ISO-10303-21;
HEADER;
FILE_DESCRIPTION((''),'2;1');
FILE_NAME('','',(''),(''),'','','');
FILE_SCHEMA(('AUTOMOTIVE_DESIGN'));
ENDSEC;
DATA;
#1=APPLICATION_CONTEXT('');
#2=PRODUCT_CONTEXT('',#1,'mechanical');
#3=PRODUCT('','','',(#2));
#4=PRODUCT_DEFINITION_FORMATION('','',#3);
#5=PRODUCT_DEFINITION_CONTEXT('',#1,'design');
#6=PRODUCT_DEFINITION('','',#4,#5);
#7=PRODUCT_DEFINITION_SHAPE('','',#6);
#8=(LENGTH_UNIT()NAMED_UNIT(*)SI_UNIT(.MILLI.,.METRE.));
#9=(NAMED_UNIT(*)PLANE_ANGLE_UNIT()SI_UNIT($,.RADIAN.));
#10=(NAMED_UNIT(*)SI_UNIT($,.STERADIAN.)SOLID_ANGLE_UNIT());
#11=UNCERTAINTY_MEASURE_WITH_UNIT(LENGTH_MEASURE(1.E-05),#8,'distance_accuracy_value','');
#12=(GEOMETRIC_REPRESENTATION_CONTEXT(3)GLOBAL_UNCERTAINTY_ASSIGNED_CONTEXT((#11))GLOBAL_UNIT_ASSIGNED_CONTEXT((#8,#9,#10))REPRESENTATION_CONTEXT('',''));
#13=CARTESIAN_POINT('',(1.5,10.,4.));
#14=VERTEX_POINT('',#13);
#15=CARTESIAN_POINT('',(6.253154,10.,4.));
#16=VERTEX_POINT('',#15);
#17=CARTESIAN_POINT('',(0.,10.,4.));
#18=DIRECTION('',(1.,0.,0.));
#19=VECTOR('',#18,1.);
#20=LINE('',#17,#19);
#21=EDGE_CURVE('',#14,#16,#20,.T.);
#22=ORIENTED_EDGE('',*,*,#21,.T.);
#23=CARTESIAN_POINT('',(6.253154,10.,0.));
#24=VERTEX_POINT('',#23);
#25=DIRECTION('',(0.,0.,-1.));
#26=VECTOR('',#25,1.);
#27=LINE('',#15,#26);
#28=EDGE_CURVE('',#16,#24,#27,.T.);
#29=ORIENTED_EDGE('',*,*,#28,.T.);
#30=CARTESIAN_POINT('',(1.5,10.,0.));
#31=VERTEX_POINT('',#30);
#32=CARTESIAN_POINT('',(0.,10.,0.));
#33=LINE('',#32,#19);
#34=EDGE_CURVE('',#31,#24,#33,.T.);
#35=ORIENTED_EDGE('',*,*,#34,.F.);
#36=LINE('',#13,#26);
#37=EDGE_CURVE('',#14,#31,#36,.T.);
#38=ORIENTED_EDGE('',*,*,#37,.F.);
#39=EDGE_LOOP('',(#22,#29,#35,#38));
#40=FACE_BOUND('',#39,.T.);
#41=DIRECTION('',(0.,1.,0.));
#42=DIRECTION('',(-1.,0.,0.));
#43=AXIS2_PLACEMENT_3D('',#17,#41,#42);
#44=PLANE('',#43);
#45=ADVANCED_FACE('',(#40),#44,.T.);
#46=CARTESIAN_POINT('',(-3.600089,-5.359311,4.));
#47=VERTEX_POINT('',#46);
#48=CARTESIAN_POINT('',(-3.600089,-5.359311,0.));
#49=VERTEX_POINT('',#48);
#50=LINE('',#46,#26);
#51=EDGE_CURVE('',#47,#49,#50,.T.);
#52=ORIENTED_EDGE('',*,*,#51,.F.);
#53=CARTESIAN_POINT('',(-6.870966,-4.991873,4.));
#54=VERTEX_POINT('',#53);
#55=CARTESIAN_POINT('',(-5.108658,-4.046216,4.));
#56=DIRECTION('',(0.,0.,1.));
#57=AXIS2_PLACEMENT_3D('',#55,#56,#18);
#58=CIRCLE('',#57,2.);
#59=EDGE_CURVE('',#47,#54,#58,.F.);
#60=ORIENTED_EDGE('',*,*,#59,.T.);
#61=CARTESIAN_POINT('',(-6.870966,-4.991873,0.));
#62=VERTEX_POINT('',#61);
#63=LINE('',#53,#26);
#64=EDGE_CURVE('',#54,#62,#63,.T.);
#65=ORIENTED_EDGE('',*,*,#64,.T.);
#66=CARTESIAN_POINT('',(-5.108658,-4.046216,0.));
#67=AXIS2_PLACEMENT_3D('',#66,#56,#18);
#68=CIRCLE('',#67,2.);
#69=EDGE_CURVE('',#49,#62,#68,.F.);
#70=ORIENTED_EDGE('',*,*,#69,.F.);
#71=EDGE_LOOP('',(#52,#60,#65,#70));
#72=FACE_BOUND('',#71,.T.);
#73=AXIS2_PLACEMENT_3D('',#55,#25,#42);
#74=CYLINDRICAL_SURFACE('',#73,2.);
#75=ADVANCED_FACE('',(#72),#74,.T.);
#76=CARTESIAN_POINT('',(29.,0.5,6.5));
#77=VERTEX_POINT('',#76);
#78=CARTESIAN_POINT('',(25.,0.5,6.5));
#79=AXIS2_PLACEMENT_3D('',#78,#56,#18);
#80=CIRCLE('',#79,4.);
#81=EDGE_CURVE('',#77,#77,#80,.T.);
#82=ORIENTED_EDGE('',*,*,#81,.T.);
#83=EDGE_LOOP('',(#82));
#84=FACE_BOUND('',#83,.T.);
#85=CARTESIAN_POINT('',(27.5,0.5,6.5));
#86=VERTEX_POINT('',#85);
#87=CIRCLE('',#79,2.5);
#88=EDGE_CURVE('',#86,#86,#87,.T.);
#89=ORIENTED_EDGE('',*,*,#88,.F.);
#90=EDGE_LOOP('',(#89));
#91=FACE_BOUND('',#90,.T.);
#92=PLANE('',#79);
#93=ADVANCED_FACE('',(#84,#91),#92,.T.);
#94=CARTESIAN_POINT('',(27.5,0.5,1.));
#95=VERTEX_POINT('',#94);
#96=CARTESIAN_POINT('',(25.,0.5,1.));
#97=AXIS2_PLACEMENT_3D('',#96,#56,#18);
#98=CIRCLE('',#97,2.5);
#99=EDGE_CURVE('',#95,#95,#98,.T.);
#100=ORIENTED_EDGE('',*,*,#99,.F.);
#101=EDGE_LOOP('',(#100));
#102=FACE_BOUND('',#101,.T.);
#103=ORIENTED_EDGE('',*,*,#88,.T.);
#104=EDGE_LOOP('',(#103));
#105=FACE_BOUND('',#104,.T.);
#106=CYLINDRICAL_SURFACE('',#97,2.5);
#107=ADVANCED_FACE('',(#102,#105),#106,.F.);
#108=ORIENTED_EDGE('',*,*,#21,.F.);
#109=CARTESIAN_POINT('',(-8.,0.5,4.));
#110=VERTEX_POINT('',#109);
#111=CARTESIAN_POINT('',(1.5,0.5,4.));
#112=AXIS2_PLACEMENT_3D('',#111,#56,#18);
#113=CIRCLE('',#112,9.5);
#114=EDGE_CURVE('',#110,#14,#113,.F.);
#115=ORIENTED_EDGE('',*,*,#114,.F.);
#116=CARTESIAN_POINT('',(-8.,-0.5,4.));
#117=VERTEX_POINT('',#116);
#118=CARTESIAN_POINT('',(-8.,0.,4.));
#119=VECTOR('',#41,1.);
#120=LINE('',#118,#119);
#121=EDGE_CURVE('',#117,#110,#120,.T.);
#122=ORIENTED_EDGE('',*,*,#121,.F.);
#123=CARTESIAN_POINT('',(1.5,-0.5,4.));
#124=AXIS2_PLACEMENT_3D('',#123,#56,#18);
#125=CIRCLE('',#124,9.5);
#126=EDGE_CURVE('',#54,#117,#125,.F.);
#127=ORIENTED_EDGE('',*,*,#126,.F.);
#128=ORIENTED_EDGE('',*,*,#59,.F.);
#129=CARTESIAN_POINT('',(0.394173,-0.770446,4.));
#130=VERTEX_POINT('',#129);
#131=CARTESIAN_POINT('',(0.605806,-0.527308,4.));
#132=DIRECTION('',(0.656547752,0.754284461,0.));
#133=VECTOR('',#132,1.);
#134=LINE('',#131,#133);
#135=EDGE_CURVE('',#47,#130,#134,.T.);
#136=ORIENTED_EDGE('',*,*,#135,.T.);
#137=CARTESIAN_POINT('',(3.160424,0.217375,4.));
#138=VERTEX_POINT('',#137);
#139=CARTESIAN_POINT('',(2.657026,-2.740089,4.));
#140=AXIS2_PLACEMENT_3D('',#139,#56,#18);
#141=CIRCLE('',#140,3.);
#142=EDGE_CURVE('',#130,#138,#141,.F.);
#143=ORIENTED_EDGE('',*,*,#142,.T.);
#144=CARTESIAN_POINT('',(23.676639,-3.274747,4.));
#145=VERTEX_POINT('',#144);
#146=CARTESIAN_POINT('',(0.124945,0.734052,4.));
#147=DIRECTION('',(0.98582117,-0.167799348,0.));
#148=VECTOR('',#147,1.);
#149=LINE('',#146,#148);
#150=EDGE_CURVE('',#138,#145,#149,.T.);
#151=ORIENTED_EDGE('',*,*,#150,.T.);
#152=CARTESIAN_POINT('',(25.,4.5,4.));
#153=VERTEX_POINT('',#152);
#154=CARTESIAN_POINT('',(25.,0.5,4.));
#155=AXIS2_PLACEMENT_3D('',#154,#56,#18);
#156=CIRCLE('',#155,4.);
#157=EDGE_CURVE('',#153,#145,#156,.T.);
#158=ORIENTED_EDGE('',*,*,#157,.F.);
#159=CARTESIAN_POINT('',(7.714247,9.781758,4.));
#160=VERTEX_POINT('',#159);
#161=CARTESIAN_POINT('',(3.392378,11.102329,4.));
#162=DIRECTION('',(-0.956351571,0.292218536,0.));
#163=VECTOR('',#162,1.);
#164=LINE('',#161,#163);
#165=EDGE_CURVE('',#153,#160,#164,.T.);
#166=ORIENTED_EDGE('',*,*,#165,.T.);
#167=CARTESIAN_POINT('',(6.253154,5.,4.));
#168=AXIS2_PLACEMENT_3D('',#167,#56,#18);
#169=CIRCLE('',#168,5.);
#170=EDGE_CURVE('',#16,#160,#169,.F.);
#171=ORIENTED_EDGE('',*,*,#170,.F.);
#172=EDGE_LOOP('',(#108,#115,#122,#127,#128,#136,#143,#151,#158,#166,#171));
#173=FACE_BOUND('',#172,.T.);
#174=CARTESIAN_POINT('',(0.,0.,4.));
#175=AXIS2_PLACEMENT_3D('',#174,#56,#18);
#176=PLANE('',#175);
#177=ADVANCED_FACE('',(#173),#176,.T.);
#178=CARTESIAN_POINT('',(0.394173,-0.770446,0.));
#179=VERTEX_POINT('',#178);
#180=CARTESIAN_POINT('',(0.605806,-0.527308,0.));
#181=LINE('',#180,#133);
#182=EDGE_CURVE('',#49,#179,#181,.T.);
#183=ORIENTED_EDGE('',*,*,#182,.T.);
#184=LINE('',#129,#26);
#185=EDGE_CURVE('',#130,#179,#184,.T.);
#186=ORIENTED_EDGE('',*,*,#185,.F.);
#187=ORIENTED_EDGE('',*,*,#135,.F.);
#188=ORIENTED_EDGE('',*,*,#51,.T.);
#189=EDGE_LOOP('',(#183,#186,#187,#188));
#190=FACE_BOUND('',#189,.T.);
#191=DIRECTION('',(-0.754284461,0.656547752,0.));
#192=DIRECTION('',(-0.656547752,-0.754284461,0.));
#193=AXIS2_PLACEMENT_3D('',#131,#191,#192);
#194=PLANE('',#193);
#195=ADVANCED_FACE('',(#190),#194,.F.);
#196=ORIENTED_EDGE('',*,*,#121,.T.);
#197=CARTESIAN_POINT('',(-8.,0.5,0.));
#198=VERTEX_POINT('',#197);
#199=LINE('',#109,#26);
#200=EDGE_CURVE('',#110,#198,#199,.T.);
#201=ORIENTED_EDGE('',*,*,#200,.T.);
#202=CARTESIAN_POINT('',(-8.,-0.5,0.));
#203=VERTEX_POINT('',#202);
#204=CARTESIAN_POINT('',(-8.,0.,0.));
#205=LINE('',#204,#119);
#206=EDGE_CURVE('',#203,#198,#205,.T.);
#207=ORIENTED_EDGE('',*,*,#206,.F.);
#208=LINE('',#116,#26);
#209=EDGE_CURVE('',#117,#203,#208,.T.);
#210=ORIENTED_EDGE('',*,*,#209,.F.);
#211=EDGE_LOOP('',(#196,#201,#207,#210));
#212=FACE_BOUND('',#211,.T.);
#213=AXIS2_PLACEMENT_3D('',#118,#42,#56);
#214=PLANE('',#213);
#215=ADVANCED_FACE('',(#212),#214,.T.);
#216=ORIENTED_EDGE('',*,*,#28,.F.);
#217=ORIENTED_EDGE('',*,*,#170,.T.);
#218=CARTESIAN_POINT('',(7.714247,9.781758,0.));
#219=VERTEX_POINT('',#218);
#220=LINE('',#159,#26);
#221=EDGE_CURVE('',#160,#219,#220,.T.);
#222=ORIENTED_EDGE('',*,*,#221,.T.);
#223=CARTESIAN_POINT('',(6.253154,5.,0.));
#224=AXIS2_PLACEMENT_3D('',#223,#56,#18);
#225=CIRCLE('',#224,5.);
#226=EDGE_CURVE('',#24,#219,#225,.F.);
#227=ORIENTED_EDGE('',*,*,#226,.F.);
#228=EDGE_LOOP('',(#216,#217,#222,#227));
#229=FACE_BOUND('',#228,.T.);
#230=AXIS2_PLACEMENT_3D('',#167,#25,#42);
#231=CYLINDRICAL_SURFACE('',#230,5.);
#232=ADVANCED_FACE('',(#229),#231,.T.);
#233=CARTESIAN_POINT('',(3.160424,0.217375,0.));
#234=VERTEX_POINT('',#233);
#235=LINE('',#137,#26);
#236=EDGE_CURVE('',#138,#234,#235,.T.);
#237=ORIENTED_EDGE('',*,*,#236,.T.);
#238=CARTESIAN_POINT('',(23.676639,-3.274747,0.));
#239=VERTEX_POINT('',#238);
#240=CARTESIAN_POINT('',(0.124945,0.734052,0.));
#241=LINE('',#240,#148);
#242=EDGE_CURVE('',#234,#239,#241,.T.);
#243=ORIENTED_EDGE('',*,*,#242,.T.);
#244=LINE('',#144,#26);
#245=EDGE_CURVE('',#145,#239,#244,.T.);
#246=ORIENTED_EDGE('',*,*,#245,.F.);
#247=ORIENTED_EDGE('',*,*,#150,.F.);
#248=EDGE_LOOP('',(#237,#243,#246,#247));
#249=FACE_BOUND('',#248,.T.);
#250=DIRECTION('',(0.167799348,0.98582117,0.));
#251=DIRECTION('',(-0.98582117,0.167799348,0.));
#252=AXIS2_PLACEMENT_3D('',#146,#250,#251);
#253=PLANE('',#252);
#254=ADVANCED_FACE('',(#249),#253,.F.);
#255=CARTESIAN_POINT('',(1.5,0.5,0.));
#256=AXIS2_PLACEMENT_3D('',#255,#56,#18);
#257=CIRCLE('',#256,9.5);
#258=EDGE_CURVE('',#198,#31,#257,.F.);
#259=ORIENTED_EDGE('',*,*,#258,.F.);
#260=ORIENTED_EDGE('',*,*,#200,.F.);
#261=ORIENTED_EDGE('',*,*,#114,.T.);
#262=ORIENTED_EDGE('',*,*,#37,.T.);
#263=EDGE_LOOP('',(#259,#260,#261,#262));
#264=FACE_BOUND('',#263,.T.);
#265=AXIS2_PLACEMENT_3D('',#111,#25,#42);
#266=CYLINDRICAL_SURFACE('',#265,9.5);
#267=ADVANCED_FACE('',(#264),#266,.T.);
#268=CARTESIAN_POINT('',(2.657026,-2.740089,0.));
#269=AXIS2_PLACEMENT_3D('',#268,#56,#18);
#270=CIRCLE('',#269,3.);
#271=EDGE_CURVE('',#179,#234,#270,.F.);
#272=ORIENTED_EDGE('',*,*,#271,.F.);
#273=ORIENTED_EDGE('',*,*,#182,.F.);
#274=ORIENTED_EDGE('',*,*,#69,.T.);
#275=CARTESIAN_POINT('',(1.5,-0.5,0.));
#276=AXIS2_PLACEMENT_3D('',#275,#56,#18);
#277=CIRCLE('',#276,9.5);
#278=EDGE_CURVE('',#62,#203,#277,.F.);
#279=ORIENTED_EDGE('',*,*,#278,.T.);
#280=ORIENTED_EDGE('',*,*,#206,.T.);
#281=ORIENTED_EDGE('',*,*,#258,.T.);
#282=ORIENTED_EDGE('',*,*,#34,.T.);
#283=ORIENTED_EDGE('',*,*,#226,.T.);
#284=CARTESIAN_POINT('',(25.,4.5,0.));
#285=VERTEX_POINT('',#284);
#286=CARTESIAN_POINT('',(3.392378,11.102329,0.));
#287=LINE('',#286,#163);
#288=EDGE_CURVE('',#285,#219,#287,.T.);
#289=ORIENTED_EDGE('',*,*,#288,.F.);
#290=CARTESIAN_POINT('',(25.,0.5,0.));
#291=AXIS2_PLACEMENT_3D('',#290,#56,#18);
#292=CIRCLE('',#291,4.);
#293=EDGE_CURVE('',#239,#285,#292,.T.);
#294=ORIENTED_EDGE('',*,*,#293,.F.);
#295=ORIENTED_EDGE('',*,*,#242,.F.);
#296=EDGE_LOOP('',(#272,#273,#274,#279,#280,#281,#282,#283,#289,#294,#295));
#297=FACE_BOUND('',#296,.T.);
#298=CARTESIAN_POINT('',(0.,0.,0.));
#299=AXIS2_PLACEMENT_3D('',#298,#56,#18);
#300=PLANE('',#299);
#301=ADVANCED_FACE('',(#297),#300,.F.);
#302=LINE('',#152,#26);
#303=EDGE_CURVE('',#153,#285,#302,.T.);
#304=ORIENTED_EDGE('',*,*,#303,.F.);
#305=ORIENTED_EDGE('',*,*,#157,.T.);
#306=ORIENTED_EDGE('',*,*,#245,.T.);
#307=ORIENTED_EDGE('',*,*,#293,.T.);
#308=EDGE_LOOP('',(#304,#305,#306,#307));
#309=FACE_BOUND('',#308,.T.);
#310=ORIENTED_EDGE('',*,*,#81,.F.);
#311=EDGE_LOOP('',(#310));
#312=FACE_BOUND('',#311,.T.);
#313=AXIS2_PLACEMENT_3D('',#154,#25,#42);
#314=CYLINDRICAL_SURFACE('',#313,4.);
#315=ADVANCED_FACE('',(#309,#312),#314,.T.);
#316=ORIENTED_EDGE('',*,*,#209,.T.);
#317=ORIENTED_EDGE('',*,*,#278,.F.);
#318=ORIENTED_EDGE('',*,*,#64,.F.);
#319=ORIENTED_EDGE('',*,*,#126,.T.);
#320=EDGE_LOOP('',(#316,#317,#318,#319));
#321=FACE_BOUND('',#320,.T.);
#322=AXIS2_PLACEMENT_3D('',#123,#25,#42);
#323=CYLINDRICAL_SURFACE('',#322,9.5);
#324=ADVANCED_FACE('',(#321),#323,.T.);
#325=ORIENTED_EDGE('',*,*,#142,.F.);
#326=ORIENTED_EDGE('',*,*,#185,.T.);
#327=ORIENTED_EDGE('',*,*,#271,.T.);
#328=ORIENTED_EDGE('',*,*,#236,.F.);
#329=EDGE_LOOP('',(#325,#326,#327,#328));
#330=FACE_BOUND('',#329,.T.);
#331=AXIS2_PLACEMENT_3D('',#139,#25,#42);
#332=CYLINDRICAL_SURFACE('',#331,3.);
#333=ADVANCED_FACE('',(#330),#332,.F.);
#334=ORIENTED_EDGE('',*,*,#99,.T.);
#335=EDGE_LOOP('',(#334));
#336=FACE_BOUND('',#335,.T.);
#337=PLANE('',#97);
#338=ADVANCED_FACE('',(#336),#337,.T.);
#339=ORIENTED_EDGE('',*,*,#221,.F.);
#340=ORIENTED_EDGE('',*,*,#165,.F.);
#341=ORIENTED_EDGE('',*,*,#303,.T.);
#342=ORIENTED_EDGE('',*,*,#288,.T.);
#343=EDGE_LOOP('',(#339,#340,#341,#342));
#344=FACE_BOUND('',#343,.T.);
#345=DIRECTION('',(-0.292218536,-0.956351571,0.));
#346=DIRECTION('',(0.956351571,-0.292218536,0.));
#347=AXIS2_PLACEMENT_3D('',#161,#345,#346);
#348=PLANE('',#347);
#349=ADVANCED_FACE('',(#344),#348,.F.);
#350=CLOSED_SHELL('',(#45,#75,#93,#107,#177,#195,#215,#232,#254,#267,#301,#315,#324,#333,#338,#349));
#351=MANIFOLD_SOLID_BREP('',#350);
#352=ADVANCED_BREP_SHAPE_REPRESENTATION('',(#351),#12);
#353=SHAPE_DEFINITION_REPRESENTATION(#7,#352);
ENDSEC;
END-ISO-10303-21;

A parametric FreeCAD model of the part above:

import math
import FreeCAD as App
import Part
import Sketcher
from FreeCAD import Vector
Q = App.Units.Quantity

doc = App.newDocument("Part")
body = doc.addObject("PartDesign::Body", "Body")

# Sketch on XY plane
sketch1 = body.newObject("Sketcher::SketchObject", "Sketch")
sketch1.AttachmentSupport = (doc.getObject("XY_Plane"), [""])
sketch1.MapMode = "FlatFace"
sketch1.addGeometry(Part.LineSegment(Vector(25, 4.5, 0), Vector(7.7, 9.8, 0)), False)
sketch1.addGeometry(Part.ArcOfCircle(Part.Circle(Vector(6.3, 5, 0), Vector(0, 0, 1), 5), math.radians(73.01), math.radians(90)), False)
sketch1.addGeometry(Part.LineSegment(Vector(6.3, 10, 0), Vector(1.5, 10, 0)), False)
sketch1.addGeometry(Part.ArcOfCircle(Part.Circle(Vector(1.5, 0.5, 0), Vector(0, 0, 1), 9.5), math.radians(90), math.radians(180)), False)
sketch1.addGeometry(Part.LineSegment(Vector(-8, 0.5, 0), Vector(-8, -0.5, 0)), False)
sketch1.addGeometry(Part.ArcOfCircle(Part.Circle(Vector(1.5, -0.5, 0), Vector(0, 0, 1), 9.5), math.radians(-180), math.radians(-152)), False)
sketch1.addGeometry(Part.ArcOfCircle(Part.Circle(Vector(-5.1, -4, 0), Vector(0, 0, 1), 2), math.radians(-152), math.radians(-41)), False)
sketch1.addGeometry(Part.LineSegment(Vector(-3.6, -5.4, 0), Vector(0.4, -0.8, 0)), False)
sketch1.addGeometry(Part.ArcOfCircle(Part.Circle(Vector(2.7, -2.7, 0), Vector(0, 0, 1), 3), math.radians(80), math.radians(139)), False)
sketch1.addGeometry(Part.LineSegment(Vector(3.2, 0.2, 0), Vector(23.7, -3.3, 0)), False)
sketch1.addGeometry(Part.ArcOfCircle(Part.Circle(Vector(25, 0.5, 0), Vector(0, 0, 1), 4), math.radians(-109), math.radians(90)), False)
sketch1.addConstraint(Sketcher.Constraint("Tangent", 0, 2, 1, 1))
sketch1.addConstraint(Sketcher.Constraint("Tangent", 1, 2, 2, 1))
sketch1.addConstraint(Sketcher.Constraint("Tangent", 2, 2, 3, 1))
sketch1.addConstraint(Sketcher.Constraint("Tangent", 3, 2, 4, 1))
sketch1.addConstraint(Sketcher.Constraint("Tangent", 4, 2, 5, 1))
sketch1.addConstraint(Sketcher.Constraint("Tangent", 5, 2, 6, 1))
sketch1.addConstraint(Sketcher.Constraint("Tangent", 6, 2, 7, 1))
sketch1.addConstraint(Sketcher.Constraint("Tangent", 7, 2, 8, 2))
sketch1.addConstraint(Sketcher.Constraint("Tangent", 8, 1, 9, 1))
sketch1.addConstraint(Sketcher.Constraint("Coincident", 9, 2, 10, 1))
sketch1.addConstraint(Sketcher.Constraint("Coincident", 10, 2, 0, 1))
sketch1.addConstraint(Sketcher.Constraint("Horizontal", 2))
sketch1.addConstraint(Sketcher.Constraint("Vertical", 4))
sketch1.addConstraint(Sketcher.Constraint("Equal", 3, 5))
sketch1.addConstraint(Sketcher.Constraint("Horizontal", 3, 3, 10, 3))
sketch1.addConstraint(Sketcher.Constraint("Radius", 1, Q("5 mm")))
sketch1.addConstraint(Sketcher.Constraint("Radius", 6, Q("2 mm")))
sketch1.addConstraint(Sketcher.Constraint("Radius", 8, Q("3 mm")))
sketch1.addConstraint(Sketcher.Constraint("Radius", 10, Q("4 mm")))
sketch1.addConstraint(Sketcher.Constraint("Radius", 3, Q("9.5 mm")))
sketch1.addConstraint(Sketcher.Constraint("DistanceY", 4, 2, 4, 1, Q("1 mm")))
sketch1.addConstraint(Sketcher.Constraint("DistanceY", -1, 1, 1, 3, Q("5 mm")))
sketch1.addConstraint(Sketcher.Constraint("DistanceX", -1, 1, 10, 3, Q("25 mm")))
sketch1.addConstraint(Sketcher.Constraint("DistanceX", 3, 2, -1, 1, Q("8 mm")))
sketch1.addConstraint(Sketcher.Constraint("DistanceX", -1, 1, 10, 2, Q("25 mm")))
sketch1.addConstraint(Sketcher.Constraint("DistanceX", 8, 3, 8, 1, Q("0.503398 mm")))
sketch1.addConstraint(Sketcher.Constraint("DistanceX", 2, 2, 2, 1, Q("4.753154 mm")))
sketch1.addConstraint(Sketcher.Constraint("DistanceY", 8, 3, -1, 1, Q("2.740089 mm")))
sketch1.addConstraint(Sketcher.Constraint("DistanceX", 6, 2, -1, 1, Q("3.600089 mm")))
sketch1.addConstraint(Sketcher.Constraint("DistanceY", 6, 2, -1, 1, Q("5.359311 mm")))
pad1 = body.newObject("PartDesign::Pad", "Pad")
pad1.Profile = sketch1
pad1.Length = 4

# Sketch on XY plane
sketch2 = body.newObject("Sketcher::SketchObject", "Sketch001")
sketch2.AttachmentSupport = (doc.getObject("XY_Plane"), [""])
sketch2.MapMode = "FlatFace"
sketch2.AttachmentOffset = App.Placement(Vector(0, 0, 4), App.Rotation())
sketch2.addGeometry(Part.Circle(Vector(25, 0.5, 0), Vector(0, 0, 1), 4), False)
sketch2.addConstraint(Sketcher.Constraint("Diameter", 0, Q("8 mm")))
sketch2.addConstraint(Sketcher.Constraint("DistanceX", -1, 1, 0, 3, Q("25 mm")))
sketch2.addConstraint(Sketcher.Constraint("DistanceY", -1, 1, 0, 3, Q("0.5 mm")))
pad2 = body.newObject("PartDesign::Pad", "Pad001")
pad2.Profile = sketch2
pad2.Length = 2.5

# Sketch on XY plane
sketch3 = body.newObject("Sketcher::SketchObject", "Sketch002")
sketch3.AttachmentSupport = (doc.getObject("XY_Plane"), [""])
sketch3.MapMode = "FlatFace"
sketch3.AttachmentOffset = App.Placement(Vector(0, 0, 6.5), App.Rotation())
sketch3.addGeometry(Part.Circle(Vector(25, 0.5, 0), Vector(0, 0, 1), 2.5), False)
sketch3.addConstraint(Sketcher.Constraint("Diameter", 0, Q("5 mm")))
sketch3.addConstraint(Sketcher.Constraint("DistanceX", -1, 1, 0, 3, Q("25 mm")))
sketch3.addConstraint(Sketcher.Constraint("DistanceY", -1, 1, 0, 3, Q("0.5 mm")))
pocket1 = body.newObject("PartDesign::Pocket", "Pocket")
pocket1.Profile = sketch3
pocket1.Length = 5.5

doc.recompute()
